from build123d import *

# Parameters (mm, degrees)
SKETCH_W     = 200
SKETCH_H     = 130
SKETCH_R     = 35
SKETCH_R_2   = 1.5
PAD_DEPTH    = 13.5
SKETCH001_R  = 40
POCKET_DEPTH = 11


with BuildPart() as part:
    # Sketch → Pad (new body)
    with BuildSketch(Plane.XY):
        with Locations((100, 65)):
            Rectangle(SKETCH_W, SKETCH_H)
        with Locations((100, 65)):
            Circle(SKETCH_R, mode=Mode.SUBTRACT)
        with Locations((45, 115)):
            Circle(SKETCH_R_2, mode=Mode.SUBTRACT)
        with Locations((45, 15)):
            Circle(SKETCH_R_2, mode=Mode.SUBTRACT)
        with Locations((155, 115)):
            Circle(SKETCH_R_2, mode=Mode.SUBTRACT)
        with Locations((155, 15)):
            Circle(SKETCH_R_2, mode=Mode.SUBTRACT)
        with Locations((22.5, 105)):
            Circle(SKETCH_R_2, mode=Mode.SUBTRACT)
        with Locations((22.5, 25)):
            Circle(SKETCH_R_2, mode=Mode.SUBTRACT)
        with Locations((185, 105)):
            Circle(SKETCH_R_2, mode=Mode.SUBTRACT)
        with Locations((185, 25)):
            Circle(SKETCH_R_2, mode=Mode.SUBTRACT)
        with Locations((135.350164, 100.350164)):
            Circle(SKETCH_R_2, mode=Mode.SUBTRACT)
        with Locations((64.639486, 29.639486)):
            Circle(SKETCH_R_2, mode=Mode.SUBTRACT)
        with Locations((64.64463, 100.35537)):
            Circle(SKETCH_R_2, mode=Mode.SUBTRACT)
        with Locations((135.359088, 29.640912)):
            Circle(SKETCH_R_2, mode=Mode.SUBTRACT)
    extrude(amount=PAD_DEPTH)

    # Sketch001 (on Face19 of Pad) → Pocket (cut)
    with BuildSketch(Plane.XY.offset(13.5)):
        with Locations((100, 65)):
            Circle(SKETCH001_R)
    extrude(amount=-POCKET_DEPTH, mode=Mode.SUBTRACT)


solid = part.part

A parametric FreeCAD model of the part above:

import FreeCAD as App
import Part
import Sketcher
Q = App.Units.Quantity


def add_polygon(sketch, points):
    """Adds a closed chain of lines whose ends are joined by coincident constraints."""
    first, n = sketch.GeometryCount, len(points)
    for a, b in zip(points, points[1:] + points[:1]):
        sketch.addGeometry(Part.LineSegment(App.Vector(*a, 0), App.Vector(*b, 0)), False)
    for i in range(n):
        sketch.addConstraint(Sketcher.Constraint("Coincident", first + i, 2, first + (i + 1) % n, 1))

doc = App.newDocument("Part")
body = doc.addObject("PartDesign::Body", "Body")

# Sketch on XY plane
sketch1 = body.newObject("Sketcher::SketchObject", "Sketch")
sketch1.AttachmentSupport = (doc.getObject("XY_Plane"), [""])
sketch1.MapMode = "FlatFace"
add_polygon(sketch1, [(0, 130), (0, 0), (200, 0), (200, 130)])  # lines 0-3
sketch1.addGeometry(Part.Circle(App.Vector(22.5, 25, 0), App.Vector(0, 0, 1), 1.5), False)  # 4
sketch1.addGeometry(Part.Circle(App.Vector(45, 15, 0), App.Vector(0, 0, 1), 1.5), False)  # 5
sketch1.addGeometry(Part.Circle(App.Vector(64.6, 29.6, 0), App.Vector(0, 0, 1), 1.5), False)  # 6
sketch1.addGeometry(Part.Circle(App.Vector(100, 65, 0), App.Vector(0, 0, 1), 35), False)  # 7
sketch1.addGeometry(Part.Circle(App.Vector(135.4, 29.6, 0), App.Vector(0, 0, 1), 1.5), False)  # 8
sketch1.addGeometry(Part.Circle(App.Vector(155, 15, 0), App.Vector(0, 0, 1), 1.5), False)  # 9
sketch1.addGeometry(Part.Circle(App.Vector(185, 25, 0), App.Vector(0, 0, 1), 1.5), False)  # 10
sketch1.addGeometry(Part.Circle(App.Vector(22.5, 105, 0), App.Vector(0, 0, 1), 1.5), False)  # 11
sketch1.addGeometry(Part.Circle(App.Vector(45, 115, 0), App.Vector(0, 0, 1), 1.5), False)  # 12
sketch1.addGeometry(Part.Circle(App.Vector(64.6, 100.4, 0), App.Vector(0, 0, 1), 1.5), False)  # 13
sketch1.addGeometry(Part.Circle(App.Vector(135.4, 100.4, 0), App.Vector(0, 0, 1), 1.5), False)  # 14
sketch1.addGeometry(Part.Circle(App.Vector(155, 115, 0), App.Vector(0, 0, 1), 1.5), False)  # 15
sketch1.addGeometry(Part.Circle(App.Vector(185, 105, 0), App.Vector(0, 0, 1), 1.5), False)  # 16
sketch1.addConstraint([
    Sketcher.Constraint("Vertical", 0),
    Sketcher.Constraint("Horizontal", 1),
    Sketcher.Constraint("Vertical", 2),
    Sketcher.Constraint("Horizontal", 3),
    Sketcher.Constraint("Coincident", 0, 2, -1, 1),
    Sketcher.Constraint("Equal", 4, 5),
    Sketcher.Constraint("Equal", 5, 6),
    Sketcher.Constraint("Equal", 6, 8),
    Sketcher.Constraint("Equal", 8, 9),
    Sketcher.Constraint("Equal", 9, 10),
    Sketcher.Constraint("Equal", 10, 11),
    Sketcher.Constraint("Equal", 11, 12),
    Sketcher.Constraint("Equal", 12, 13),
    Sketcher.Constraint("Equal", 13, 14),
    Sketcher.Constraint("Equal", 14, 15),
    Sketcher.Constraint("Equal", 15, 16),
    Sketcher.Constraint("Horizontal", 5, 3, 9, 3),
    Sketcher.Constraint("Horizontal", 4, 3, 10, 3),
    Sketcher.Constraint("Horizontal", 12, 3, 15, 3),
    Sketcher.Constraint("Horizontal", 11, 3, 16, 3),
    Sketcher.Constraint("Vertical", 4, 3, 11, 3),
    Sketcher.Constraint("Vertical", 5, 3, 12, 3),
    Sketcher.Constraint("Vertical", 9, 3, 15, 3),
    Sketcher.Constraint("Vertical", 10, 3, 16, 3),
    Sketcher.Constraint("Diameter", 4, Q("3 mm")),
    Sketcher.Constraint("Diameter", 7, Q("70 mm")),
    Sketcher.Constraint("DistanceX", 1, 1, 1, 2, Q("200 mm")),
    Sketcher.Constraint("DistanceY", 0, 2, 0, 1, Q("130 mm")),
    Sketcher.Constraint("DistanceY", -1, 1, 4, 3, Q("25 mm")),
    Sketcher.Constraint("DistanceX", -1, 1, 5, 3, Q("45 mm")),
    Sketcher.Constraint("DistanceY", -1, 1, 5, 3, Q("15 mm")),
    Sketcher.Constraint("DistanceX", -1, 1, 7, 3, Q("100 mm")),
    Sketcher.Constraint("DistanceY", -1, 1, 7, 3, Q("65 mm")),
    Sketcher.Constraint("DistanceX", -1, 1, 9, 3, Q("155 mm")),
    Sketcher.Constraint("DistanceX", -1, 1, 10, 3, Q("185 mm")),
    Sketcher.Constraint("DistanceY", -1, 1, 11, 3, Q("105 mm")),
    Sketcher.Constraint("DistanceY", -1, 1, 12, 3, Q("115 mm")),
    Sketcher.Constraint("DistanceX", -1, 1, 4, 3, Q("22.5 mm")),
    Sketcher.Constraint("DistanceX", -1, 1, 8, 3, Q("135.359088 mm")),
    Sketcher.Constraint("DistanceY", -1, 1, 8, 3, Q("29.640912 mm")),
    Sketcher.Constraint("DistanceX", -1, 1, 13, 3, Q("64.64463 mm")),
    Sketcher.Constraint("DistanceY", -1, 1, 13, 3, Q("100.35537 mm")),
    Sketcher.Constraint("DistanceX", -1, 1, 6, 3, Q("64.639486 mm")),
    Sketcher.Constraint("DistanceY", -1, 1, 6, 3, Q("29.639486 mm")),
    Sketcher.Constraint("DistanceX", -1, 1, 14, 3, Q("135.350164 mm")),
    Sketcher.Constraint("DistanceY", -1, 1, 14, 3, Q("100.350164 mm")),
])
pad1 = body.newObject("PartDesign::Pad", "Pad")
pad1.Profile = sketch1
pad1.Length = 13.5

# Sketch on XY plane
sketch2 = body.newObject("Sketcher::SketchObject", "Sketch001")
sketch2.AttachmentSupport = (doc.getObject("XY_Plane"), [""])
sketch2.MapMode = "FlatFace"
sketch2.AttachmentOffset = App.Placement(App.Vector(0, 0, 13.5), App.Rotation())
sketch2.addGeometry(Part.Circle(App.Vector(100, 65, 0), App.Vector(0, 0, 1), 40), False)
sketch2.addConstraint([
    Sketcher.Constraint("Diameter", 0, Q("80 mm")),
    Sketcher.Constraint("DistanceX", -1, 1, 0, 3, Q("100 mm")),
    Sketcher.Constraint("DistanceY", -1, 1, 0, 3, Q("65 mm")),
])
pocket1 = body.newObject("PartDesign::Pocket", "Pocket")
pocket1.Profile = sketch2
pocket1.Length = 11

doc.recompute()
